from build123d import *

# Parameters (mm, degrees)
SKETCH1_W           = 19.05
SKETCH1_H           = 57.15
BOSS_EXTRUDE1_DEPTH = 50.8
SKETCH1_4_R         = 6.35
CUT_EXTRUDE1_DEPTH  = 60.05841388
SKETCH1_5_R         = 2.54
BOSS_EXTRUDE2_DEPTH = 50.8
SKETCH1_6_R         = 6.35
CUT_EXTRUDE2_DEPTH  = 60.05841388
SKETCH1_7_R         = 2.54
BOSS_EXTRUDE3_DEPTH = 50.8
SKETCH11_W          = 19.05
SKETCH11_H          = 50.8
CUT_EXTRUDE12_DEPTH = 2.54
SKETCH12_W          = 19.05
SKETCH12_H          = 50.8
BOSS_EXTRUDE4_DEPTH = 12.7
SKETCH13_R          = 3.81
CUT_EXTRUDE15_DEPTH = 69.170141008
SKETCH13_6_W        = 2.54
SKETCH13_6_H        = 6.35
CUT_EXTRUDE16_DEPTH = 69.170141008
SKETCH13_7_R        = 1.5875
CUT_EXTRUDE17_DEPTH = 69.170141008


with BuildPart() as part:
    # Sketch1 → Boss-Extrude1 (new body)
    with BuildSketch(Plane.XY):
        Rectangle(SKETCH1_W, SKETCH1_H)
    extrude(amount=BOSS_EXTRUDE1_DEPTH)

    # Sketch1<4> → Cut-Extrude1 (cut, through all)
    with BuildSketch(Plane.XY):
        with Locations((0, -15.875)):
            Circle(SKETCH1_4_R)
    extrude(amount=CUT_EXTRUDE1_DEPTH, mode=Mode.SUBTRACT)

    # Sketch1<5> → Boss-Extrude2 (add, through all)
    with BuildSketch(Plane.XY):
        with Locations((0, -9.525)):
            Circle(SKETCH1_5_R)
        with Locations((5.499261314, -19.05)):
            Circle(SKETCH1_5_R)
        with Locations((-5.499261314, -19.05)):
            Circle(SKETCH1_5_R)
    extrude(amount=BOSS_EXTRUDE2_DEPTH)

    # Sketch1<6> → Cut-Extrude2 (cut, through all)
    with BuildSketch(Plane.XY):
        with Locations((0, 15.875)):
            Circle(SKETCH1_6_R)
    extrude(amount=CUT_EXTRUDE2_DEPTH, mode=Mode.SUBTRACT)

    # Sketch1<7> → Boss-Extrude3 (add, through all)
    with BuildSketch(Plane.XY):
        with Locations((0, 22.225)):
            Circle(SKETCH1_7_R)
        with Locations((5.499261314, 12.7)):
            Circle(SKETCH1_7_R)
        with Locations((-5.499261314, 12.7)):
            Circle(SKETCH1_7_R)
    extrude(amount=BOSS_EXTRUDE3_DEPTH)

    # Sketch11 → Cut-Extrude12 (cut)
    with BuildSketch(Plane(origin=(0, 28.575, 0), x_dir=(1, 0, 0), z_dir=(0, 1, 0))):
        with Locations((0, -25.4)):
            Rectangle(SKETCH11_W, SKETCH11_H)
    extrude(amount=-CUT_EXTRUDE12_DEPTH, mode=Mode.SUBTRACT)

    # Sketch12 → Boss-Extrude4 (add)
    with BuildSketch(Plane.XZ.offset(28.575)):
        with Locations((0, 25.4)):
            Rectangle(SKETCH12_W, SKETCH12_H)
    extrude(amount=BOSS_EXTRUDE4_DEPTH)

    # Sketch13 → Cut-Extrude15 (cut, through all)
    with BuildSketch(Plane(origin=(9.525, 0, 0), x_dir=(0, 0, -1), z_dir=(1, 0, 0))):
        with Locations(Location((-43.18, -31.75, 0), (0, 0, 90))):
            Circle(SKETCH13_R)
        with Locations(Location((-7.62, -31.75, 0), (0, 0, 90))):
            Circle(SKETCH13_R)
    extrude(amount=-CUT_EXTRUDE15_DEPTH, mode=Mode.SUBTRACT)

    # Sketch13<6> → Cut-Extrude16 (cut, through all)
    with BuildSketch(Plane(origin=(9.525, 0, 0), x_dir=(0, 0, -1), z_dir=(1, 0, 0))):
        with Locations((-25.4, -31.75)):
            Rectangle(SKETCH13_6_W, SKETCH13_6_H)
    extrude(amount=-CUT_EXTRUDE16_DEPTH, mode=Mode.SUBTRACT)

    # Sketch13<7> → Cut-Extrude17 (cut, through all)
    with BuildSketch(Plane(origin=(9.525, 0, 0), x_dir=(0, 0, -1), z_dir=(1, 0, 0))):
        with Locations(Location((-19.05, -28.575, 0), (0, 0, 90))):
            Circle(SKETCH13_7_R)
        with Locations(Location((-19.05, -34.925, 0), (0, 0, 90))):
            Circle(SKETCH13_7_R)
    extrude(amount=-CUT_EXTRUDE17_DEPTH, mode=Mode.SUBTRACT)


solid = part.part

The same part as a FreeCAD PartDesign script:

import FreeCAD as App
import Part
import Sketcher

V = App.Vector
Q = App.Units.Quantity


def add_polygon(sketch, points):
    """Adds a closed chain of lines whose ends are joined by coincident constraints."""
    first, n = sketch.GeometryCount, len(points)
    for a, b in zip(points, points[1:] + points[:1]):
        sketch.addGeometry(Part.LineSegment(App.Vector(*a, 0), App.Vector(*b, 0)), False)
    for i in range(n):
        sketch.addConstraint(Sketcher.Constraint("Coincident", first + i, 2, first + (i + 1) % n, 1))

doc = App.newDocument("Part")
body = doc.addObject("PartDesign::Body", "Body")

# Sketch on XY plane
sketch1 = body.newObject("Sketcher::SketchObject", "Sketch")
sketch1.AttachmentSupport = (doc.getObject("XY_Plane"), [""])
sketch1.MapMode = "FlatFace"
add_polygon(sketch1, [(-10, 29), (-10, -29), (10, -29), (10, 29)])  # lines 0-3
sketch1.addConstraint(Sketcher.Constraint("Vertical", 0))
sketch1.addConstraint(Sketcher.Constraint("Horizontal", 1))
sketch1.addConstraint(Sketcher.Constraint("Vertical", 2))
sketch1.addConstraint(Sketcher.Constraint("Horizontal", 3))
sketch1.addConstraint(Sketcher.Constraint("Symmetric", 0, 2, 2, 2, -1, 1))
sketch1.addConstraint(Sketcher.Constraint("DistanceX", 1, 1, 1, 2, Q("0.75 in")))
sketch1.addConstraint(Sketcher.Constraint("DistanceY", 0, 2, 0, 1, Q("2.25 in")))
pad1 = body.newObject("PartDesign::Pad", "Pad")
pad1.Profile = sketch1
pad1.Length = Q("2 in")

# Sketch on XY plane
sketch2 = body.newObject("Sketcher::SketchObject", "Sketch001")
sketch2.AttachmentSupport = (doc.getObject("XY_Plane"), [""])
sketch2.MapMode = "FlatFace"
sketch2.addGeometry(Part.Circle(V(0, -16, 0), V(0, 0, 1), 6), False)
sketch2.addConstraint(Sketcher.Constraint("PointOnObject", 0, 3, -2))
sketch2.addConstraint(Sketcher.Constraint("Diameter", 0, Q("0.5 in")))
sketch2.addConstraint(Sketcher.Constraint("DistanceY", 0, 3, -1, 1, Q("0.625 in")))
pocket1 = body.newObject("PartDesign::Pocket", "Pocket")
pocket1.Profile = sketch2
pocket1.Type = "ThroughAll"
pocket1.Reversed = True

# Sketch on XY plane
sketch3 = body.newObject("Sketcher::SketchObject", "Sketch002")
sketch3.AttachmentSupport = (doc.getObject("XY_Plane"), [""])
sketch3.MapMode = "FlatFace"
sketch3.addGeometry(Part.Circle(V(0, -9.5, 0), V(0, 0, 1), 2.5), False)
sketch3.addGeometry(Part.Circle(V(5.5, -19.1, 0), V(0, 0, 1), 2.5), False)
sketch3.addGeometry(Part.Circle(V(-5.5, -19.1, 0), V(0, 0, 1), 2.5), False)
sketch3.addConstraint(Sketcher.Constraint("Equal", 0, 1))
sketch3.addConstraint(Sketcher.Constraint("Equal", 1, 2))
sketch3.addConstraint(Sketcher.Constraint("Symmetric", 1, 3, 2, 3, -2))
sketch3.addConstraint(Sketcher.Constraint("PointOnObject", 0, 3, -2))
sketch3.addConstraint(Sketcher.Constraint("Diameter", 0, Q("0.2 in")))
sketch3.addConstraint(Sketcher.Constraint("DistanceY", 1, 3, -1, 1, Q("0.75 in")))
sketch3.addConstraint(Sketcher.Constraint("DistanceY", 0, 3, -1, 1, Q("0.375 in")))
sketch3.addConstraint(Sketcher.Constraint("DistanceX", -1, 1, 1, 3, Q("5.499261 mm")))
pad2 = body.newObject("PartDesign::Pad", "Pad001")
pad2.Profile = sketch3
pad2.Length = Q("2 in")

# Sketch on XY plane
sketch4 = body.newObject("Sketcher::SketchObject", "Sketch003")
sketch4.AttachmentSupport = (doc.getObject("XY_Plane"), [""])
sketch4.MapMode = "FlatFace"
sketch4.addGeometry(Part.Circle(V(0, 16, 0), V(0, 0, 1), 6), False)
sketch4.addConstraint(Sketcher.Constraint("PointOnObject", 0, 3, -2))
sketch4.addConstraint(Sketcher.Constraint("Diameter", 0, Q("0.5 in")))
sketch4.addConstraint(Sketcher.Constraint("DistanceY", -1, 1, 0, 3, Q("0.625 in")))
pocket2 = body.newObject("PartDesign::Pocket", "Pocket001")
pocket2.Profile = sketch4
pocket2.Type = "ThroughAll"
pocket2.Reversed = True

# Sketch on XY plane
sketch5 = body.newObject("Sketcher::SketchObject", "Sketch004")
sketch5.AttachmentSupport = (doc.getObject("XY_Plane"), [""])
sketch5.MapMode = "FlatFace"
sketch5.addGeometry(Part.Circle(V(0, 22.2, 0), V(0, 0, 1), 2.5), False)
sketch5.addGeometry(Part.Circle(V(5.5, 12.7, 0), V(0, 0, 1), 2.5), False)
sketch5.addGeometry(Part.Circle(V(-5.5, 12.7, 0), V(0, 0, 1), 2.5), False)
sketch5.addConstraint(Sketcher.Constraint("Equal", 0, 1))
sketch5.addConstraint(Sketcher.Constraint("Equal", 1, 2))
sketch5.addConstraint(Sketcher.Constraint("Symmetric", 1, 3, 2, 3, -2))
sketch5.addConstraint(Sketcher.Constraint("PointOnObject", 0, 3, -2))
sketch5.addConstraint(Sketcher.Constraint("Diameter", 0, Q("0.2 in")))
sketch5.addConstraint(Sketcher.Constraint("DistanceY", -1, 1, 1, 3, Q("0.5 in")))
sketch5.addConstraint(Sketcher.Constraint("DistanceY", -1, 1, 0, 3, Q("0.875 in")))
sketch5.addConstraint(Sketcher.Constraint("DistanceX", -1, 1, 1, 3, Q("5.499261 mm")))
pad3 = body.newObject("PartDesign::Pad", "Pad002")
pad3.Profile = sketch5
pad3.Length = Q("2 in")

# Sketch on XZ plane
sketch6 = body.newObject("Sketcher::SketchObject", "Sketch005")
sketch6.AttachmentSupport = (doc.getObject("XZ_Plane"), [""])
sketch6.MapMode = "FlatFace"
sketch6.AttachmentOffset = App.Placement(V(0, 0, -1.125 * 25.4), App.Rotation())
add_polygon(sketch6, [(-10, 0), (-10, 51), (10, 51), (10, 0)])  # lines 0-3
sketch6.addConstraint(Sketcher.Constraint("Vertical", 0))
sketch6.addConstraint(Sketcher.Constraint("Horizontal", 1))
sketch6.addConstraint(Sketcher.Constraint("Vertical", 2))
sketch6.addConstraint(Sketcher.Constraint("Horizontal", 3))
sketch6.addConstraint(Sketcher.Constraint("Symmetric", 2, 2, 3, 2, -1, 1))
sketch6.addConstraint(Sketcher.Constraint("DistanceY", 0, 1, 0, 2, Q("2 in")))
sketch6.addConstraint(Sketcher.Constraint("DistanceX", 1, 1, 1, 2, Q("0.75 in")))
pocket3 = body.newObject("PartDesign::Pocket", "Pocket002")
pocket3.Profile = sketch6
pocket3.Length = Q("0.1 in")
pocket3.Reversed = True

# Sketch on XZ plane
sketch7 = body.newObject("Sketcher::SketchObject", "Sketch006")
sketch7.AttachmentSupport = (doc.getObject("XZ_Plane"), [""])
sketch7.MapMode = "FlatFace"
sketch7.AttachmentOffset = App.Placement(V(0, 0, 1.125 * 25.4), App.Rotation())
add_polygon(sketch7, [(-10, 51), (-10, 0), (10, 0), (10, 51)])  # lines 0-3
sketch7.addConstraint(Sketcher.Constraint("Vertical", 0))
sketch7.addConstraint(Sketcher.Constraint("Horizontal", 1))
sketch7.addConstraint(Sketcher.Constraint("Vertical", 2))
sketch7.addConstraint(Sketcher.Constraint("Horizontal", 3))
sketch7.addConstraint(Sketcher.Constraint("Symmetric", 0, 2, 1, 2, -1, 1))
sketch7.addConstraint(Sketcher.Constraint("DistanceY", 0, 2, 0, 1, Q("2 in")))
sketch7.addConstraint(Sketcher.Constraint("DistanceX", 1, 1, 1, 2, Q("0.75 in")))
pad4 = body.newObject("PartDesign::Pad", "Pad003")
pad4.Profile = sketch7
pad4.Length = Q("0.5 in")

# Sketch on YZ plane
sketch8 = body.newObject("Sketcher::SketchObject", "Sketch007")
sketch8.AttachmentSupport = (doc.getObject("YZ_Plane"), [""])
sketch8.MapMode = "FlatFace"
sketch8.AttachmentOffset = App.Placement(V(0, 0, 0.375 * 25.4), App.Rotation())
sketch8.addGeometry(Part.Circle(V(-31.8, 43.2, 0), V(0, 0, 1), 3.8), False)
sketch8.addGeometry(Part.Circle(V(-31.8, 7.6, 0), V(0, 0, 1), 3.8), False)
sketch8.addConstraint(Sketcher.Constraint("Equal", 0, 1))
sketch8.addConstraint(Sketcher.Constraint("Vertical", 0, 3, 1, 3))
sketch8.addConstraint(Sketcher.Constraint("Diameter", 0, Q("0.3 in")))
sketch8.addConstraint(Sketcher.Constraint("DistanceY", -1, 1, 0, 3, Q("1.7 in")))
sketch8.addConstraint(Sketcher.Constraint("DistanceY", -1, 1, 1, 3, Q("0.3 in")))
sketch8.addConstraint(Sketcher.Constraint("DistanceX", 0, 3, -1, 1, Q("1.25 in")))
pocket4 = body.newObject("PartDesign::Pocket", "Pocket003")
pocket4.Profile = sketch8
pocket4.Type = "ThroughAll"

# Sketch on YZ plane
sketch9 = body.newObject("Sketcher::SketchObject", "Sketch008")
sketch9.AttachmentSupport = (doc.getObject("YZ_Plane"), [""])
sketch9.MapMode = "FlatFace"
sketch9.AttachmentOffset = App.Placement(V(0, 0, 0.375 * 25.4), App.Rotation())
add_polygon(sketch9, [(-28.6, 26.7), (-34.9, 26.7), (-34.9, 24.1), (-28.6, 24.1)])  # lines 0-3
sketch9.addConstraint(Sketcher.Constraint("Horizontal", 0))
sketch9.addConstraint(Sketcher.Constraint("Vertical", 1))
sketch9.addConstraint(Sketcher.Constraint("Horizontal", 2))
sketch9.addConstraint(Sketcher.Constraint("Vertical", 3))
sketch9.addConstraint(Sketcher.Constraint("DistanceY", 1, 2, 1, 1, Q("0.1 in")))
sketch9.addConstraint(Sketcher.Constraint("DistanceX", 0, 2, 0, 1, Q("0.25 in")))
sketch9.addConstraint(Sketcher.Constraint("DistanceY", -1, 1, 0, 2, Q("1.05 in")))
sketch9.addConstraint(Sketcher.Constraint("DistanceX", 0, 2, -1, 1, Q("1.375 in")))
pocket5 = body.newObject("PartDesign::Pocket", "Pocket004")
pocket5.Profile = sketch9
pocket5.Type = "ThroughAll"

# Sketch on YZ plane
sketch10 = body.newObject("Sketcher::SketchObject", "Sketch009")
sketch10.AttachmentSupport = (doc.getObject("YZ_Plane"), [""])
sketch10.MapMode = "FlatFace"
sketch10.AttachmentOffset = App.Placement(V(0, 0, 0.375 * 25.4), App.Rotation())
sketch10.addGeometry(Part.Circle(V(-28.6, 19.1, 0), V(0, 0, 1), 1.6), False)
sketch10.addGeometry(Part.Circle(V(-34.9, 19.1, 0), V(0, 0, 1), 1.6), False)
sketch10.addConstraint(Sketcher.Constraint("Equal", 0, 1))
sketch10.addConstraint(Sketcher.Constraint("Horizontal", 0, 3, 1, 3))
sketch10.addConstraint(Sketcher.Constraint("Diameter", 0, Q("0.125 in")))
sketch10.addConstraint(Sketcher.Constraint("DistanceY", -1, 1, 0, 3, Q("0.75 in")))
sketch10.addConstraint(Sketcher.Constraint("DistanceX", 1, 3, 0, 3, Q("0.25 in")))
sketch10.addConstraint(Sketcher.Constraint("DistanceX", 0, 3, -1, 1, Q("1.125 in")))
pocket6 = body.newObject("PartDesign::Pocket", "Pocket005")
pocket6.Profile = sketch10
pocket6.Type = "ThroughAll"

doc.recompute()
